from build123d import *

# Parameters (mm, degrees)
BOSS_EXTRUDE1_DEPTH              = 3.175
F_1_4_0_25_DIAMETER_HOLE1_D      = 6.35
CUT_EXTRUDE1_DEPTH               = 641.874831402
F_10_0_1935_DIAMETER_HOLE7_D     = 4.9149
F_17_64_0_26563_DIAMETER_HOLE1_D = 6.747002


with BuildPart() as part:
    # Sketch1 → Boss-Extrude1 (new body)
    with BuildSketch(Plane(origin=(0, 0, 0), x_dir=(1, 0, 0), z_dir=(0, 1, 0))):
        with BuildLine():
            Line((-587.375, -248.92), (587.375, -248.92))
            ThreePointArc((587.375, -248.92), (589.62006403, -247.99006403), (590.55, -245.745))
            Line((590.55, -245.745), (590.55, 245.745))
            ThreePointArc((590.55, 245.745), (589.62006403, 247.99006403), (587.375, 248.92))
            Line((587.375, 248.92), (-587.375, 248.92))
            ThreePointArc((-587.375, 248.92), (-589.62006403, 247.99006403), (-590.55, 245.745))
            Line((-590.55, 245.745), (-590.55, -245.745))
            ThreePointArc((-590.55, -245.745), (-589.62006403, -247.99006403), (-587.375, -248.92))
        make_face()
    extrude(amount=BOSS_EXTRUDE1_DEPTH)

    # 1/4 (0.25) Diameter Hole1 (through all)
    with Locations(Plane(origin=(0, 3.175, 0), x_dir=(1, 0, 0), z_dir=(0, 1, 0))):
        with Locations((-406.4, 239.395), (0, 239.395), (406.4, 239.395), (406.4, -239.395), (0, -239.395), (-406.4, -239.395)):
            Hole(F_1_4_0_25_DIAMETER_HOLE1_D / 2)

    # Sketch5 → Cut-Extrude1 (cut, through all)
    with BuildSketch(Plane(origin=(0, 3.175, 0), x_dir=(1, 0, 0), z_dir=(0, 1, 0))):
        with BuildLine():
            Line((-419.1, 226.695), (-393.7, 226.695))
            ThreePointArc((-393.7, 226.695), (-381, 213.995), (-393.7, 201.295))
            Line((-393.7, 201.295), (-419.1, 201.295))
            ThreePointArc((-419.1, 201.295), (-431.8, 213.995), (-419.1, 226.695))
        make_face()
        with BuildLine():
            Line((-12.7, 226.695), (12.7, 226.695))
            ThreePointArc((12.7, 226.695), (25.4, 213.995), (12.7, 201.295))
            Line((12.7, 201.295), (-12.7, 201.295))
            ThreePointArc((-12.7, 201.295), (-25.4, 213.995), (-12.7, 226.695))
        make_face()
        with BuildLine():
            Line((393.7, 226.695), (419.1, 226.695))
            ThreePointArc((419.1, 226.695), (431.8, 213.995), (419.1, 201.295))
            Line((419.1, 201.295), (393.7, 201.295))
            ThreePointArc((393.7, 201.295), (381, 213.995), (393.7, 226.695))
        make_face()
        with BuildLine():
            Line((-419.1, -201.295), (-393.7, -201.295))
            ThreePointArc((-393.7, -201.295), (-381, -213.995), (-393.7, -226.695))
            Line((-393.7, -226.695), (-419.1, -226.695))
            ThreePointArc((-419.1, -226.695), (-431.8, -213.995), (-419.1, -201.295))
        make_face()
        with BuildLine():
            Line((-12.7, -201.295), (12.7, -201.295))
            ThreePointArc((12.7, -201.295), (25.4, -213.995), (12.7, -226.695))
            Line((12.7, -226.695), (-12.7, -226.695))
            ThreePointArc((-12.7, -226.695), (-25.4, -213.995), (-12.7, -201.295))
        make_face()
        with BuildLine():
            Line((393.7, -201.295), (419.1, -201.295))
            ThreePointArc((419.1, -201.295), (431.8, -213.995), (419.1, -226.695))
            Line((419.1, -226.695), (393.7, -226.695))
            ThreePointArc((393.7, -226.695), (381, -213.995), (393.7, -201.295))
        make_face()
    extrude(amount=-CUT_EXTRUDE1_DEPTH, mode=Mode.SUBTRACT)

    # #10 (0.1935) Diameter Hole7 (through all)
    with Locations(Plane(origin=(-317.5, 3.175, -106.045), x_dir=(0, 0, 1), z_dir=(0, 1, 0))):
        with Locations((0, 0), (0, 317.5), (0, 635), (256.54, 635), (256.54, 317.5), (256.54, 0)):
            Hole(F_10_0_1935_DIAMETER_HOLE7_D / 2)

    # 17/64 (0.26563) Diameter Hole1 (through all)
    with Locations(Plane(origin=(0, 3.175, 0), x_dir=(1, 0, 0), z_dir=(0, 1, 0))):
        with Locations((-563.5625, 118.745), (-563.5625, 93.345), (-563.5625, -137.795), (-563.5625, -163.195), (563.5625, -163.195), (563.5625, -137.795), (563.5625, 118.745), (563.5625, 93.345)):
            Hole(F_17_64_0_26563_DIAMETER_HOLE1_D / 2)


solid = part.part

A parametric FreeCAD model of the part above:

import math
import FreeCAD as App
import Part
import Sketcher
from FreeCAD import Vector
Q = App.Units.Quantity

doc = App.newDocument("Part")
body = doc.addObject("PartDesign::Body", "Body")

sketch1 = doc.addObject("Sketcher::SketchObject", "Sketch")
body.addObject(sketch1)
sketch1.AttachmentSupport = (doc.XZ_Plane, [""])
sketch1.MapMode = "FlatFace"
sketch1.addGeometry([
    Part.LineSegment(Vector(-587.4, 248.9, 0), Vector(587.4, 248.9, 0)),
    Part.ArcOfCircle(Part.Circle(Vector(587.4, 245.7, 0), Vector(0, 0, 1), 3.2), math.radians(0), math.radians(90)),
    Part.LineSegment(Vector(590.5, 245.7, 0), Vector(590.5, -245.7, 0)),
    Part.ArcOfCircle(Part.Circle(Vector(587.4, -245.7, 0), Vector(0, 0, 1), 3.2), math.radians(-90), math.radians(0)),
    Part.LineSegment(Vector(587.4, -248.9, 0), Vector(-587.4, -248.9, 0)),
    Part.ArcOfCircle(Part.Circle(Vector(-587.4, -245.7, 0), Vector(0, 0, 1), 3.2), math.radians(-180), math.radians(-90)),
    Part.LineSegment(Vector(-590.5, -245.7, 0), Vector(-590.5, 245.7, 0)),
    Part.ArcOfCircle(Part.Circle(Vector(-587.4, 245.7, 0), Vector(0, 0, 1), 3.2), math.radians(90), math.radians(180)),
], False)
sketch1.addConstraint([
    Sketcher.Constraint("Tangent", 0, 2, 1, 2),
    Sketcher.Constraint("Tangent", 1, 1, 2, 1),
    Sketcher.Constraint("Tangent", 2, 2, 3, 2),
    Sketcher.Constraint("Tangent", 3, 1, 4, 1),
    Sketcher.Constraint("Tangent", 4, 2, 5, 2),
    Sketcher.Constraint("Tangent", 5, 1, 6, 1),
    Sketcher.Constraint("Tangent", 6, 2, 7, 2),
    Sketcher.Constraint("Tangent", 7, 1, 0, 1),
    Sketcher.Constraint("Horizontal", 0),
    Sketcher.Constraint("Vertical", 2),
    Sketcher.Constraint("Horizontal", 4),
    Sketcher.Constraint("Vertical", 6),
    Sketcher.Constraint("Equal", 1, 3),
    Sketcher.Constraint("Equal", 3, 5),
    Sketcher.Constraint("Equal", 5, 7),
    Sketcher.Constraint("Symmetric", 1, 3, 5, 3, -1, 1),
    Sketcher.Constraint("Radius", 1, Q("0.125 in")),
    Sketcher.Constraint("DistanceX", 0, 1, 0, 2, Q("46.25 in")),
    Sketcher.Constraint("DistanceY", 2, 2, 2, 1, Q("19.35 in")),
])
pad1 = doc.addObject("PartDesign::Pad", "Pad")
body.addObject(pad1)
pad1.Profile = sketch1
pad1.Length = Q("0.125 in")
pad1.Reversed = True

sketch2 = doc.addObject("Sketcher::SketchObject", "Sketch001")
body.addObject(sketch2)
sketch2.AttachmentSupport = (doc.XZ_Plane, [""])
sketch2.MapMode = "FlatFace"
sketch2.AttachmentOffset = App.Placement(Vector(0, 0, -0.125 * 25.4), App.Rotation())
sketch2.addGeometry([
    Part.Circle(Vector(-406.4, -239.4, 0), Vector(0, 0, 1), 3.2),
    Part.Circle(Vector(0, -239.4, 0), Vector(0, 0, 1), 3.2),
    Part.Circle(Vector(406.4, -239.4, 0), Vector(0, 0, 1), 3.2),
    Part.Circle(Vector(406.4, 239.4, 0), Vector(0, 0, 1), 3.2),
    Part.Circle(Vector(0, 239.4, 0), Vector(0, 0, 1), 3.2),
    Part.Circle(Vector(-406.4, 239.4, 0), Vector(0, 0, 1), 3.2),
], False)
sketch2.addConstraint([
    Sketcher.Constraint("Equal", 0, 1),
    Sketcher.Constraint("Equal", 1, 2),
    Sketcher.Constraint("Equal", 2, 3),
    Sketcher.Constraint("Equal", 3, 4),
    Sketcher.Constraint("Equal", 4, 5),
    Sketcher.Constraint("Symmetric", 0, 3, 3, 3, -1, 1),
    Sketcher.Constraint("Symmetric", 1, 3, 4, 3, -1, 1),
    Sketcher.Constraint("Symmetric", 2, 3, 5, 3, -1, 1),
    Sketcher.Constraint("Symmetric", 0, 3, 2, 3, -2),
    Sketcher.Constraint("PointOnObject", 1, 3, -2),
    Sketcher.Constraint("Horizontal", 0, 3, 1, 3),
    Sketcher.Constraint("Diameter", 0, Q("0.25 in")),
    Sketcher.Constraint("DistanceX", 0, 3, -1, 1, Q("16 in")),
    Sketcher.Constraint("DistanceY", 2, 3, 3, 3, Q("18.85 in")),
])
doc.recompute()
hole = doc.addObject("PartDesign::Hole", "Hole")
body.addObject(hole)
hole.Profile = sketch2
hole.ThreadType = "None"
hole.Diameter = Q("0.25 in")
hole.DepthType = "ThroughAll"
hole.Reversed = True

sketch3 = doc.addObject("Sketcher::SketchObject", "Sketch002")
body.addObject(sketch3)
sketch3.AttachmentSupport = (doc.XZ_Plane, [""])
sketch3.MapMode = "FlatFace"
sketch3.AttachmentOffset = App.Placement(Vector(0, 0, -0.125 * 25.4), App.Rotation())
sketch3.addGeometry([
    Part.LineSegment(Vector(-394, -227, 0), Vector(-419, -227, 0)),
    Part.ArcOfCircle(Part.Circle(Vector(-419, -214, 0), Vector(0, 0, 1), 13), math.radians(90), math.radians(270)),
    Part.LineSegment(Vector(-419, -201, 0), Vector(-394, -201, 0)),
    Part.ArcOfCircle(Part.Circle(Vector(-394, -214, 0), Vector(0, 0, 1), 13), math.radians(-90), math.radians(90)),
    Part.LineSegment(Vector(13, -227, 0), Vector(-13, -227, 0)),
    Part.ArcOfCircle(Part.Circle(Vector(-13, -214, 0), Vector(0, 0, 1), 13), math.radians(90), math.radians(270)),
    Part.LineSegment(Vector(-13, -201, 0), Vector(13, -201, 0)),
    Part.ArcOfCircle(Part.Circle(Vector(13, -214, 0), Vector(0, 0, 1), 13), math.radians(-90), math.radians(90)),
    Part.LineSegment(Vector(419, -227, 0), Vector(394, -227, 0)),
    Part.ArcOfCircle(Part.Circle(Vector(394, -214, 0), Vector(0, 0, 1), 13), math.radians(90), math.radians(270)),
    Part.LineSegment(Vector(394, -201, 0), Vector(419, -201, 0)),
    Part.ArcOfCircle(Part.Circle(Vector(419, -214, 0), Vector(0, 0, 1), 13), math.radians(-90), math.radians(90)),
    Part.LineSegment(Vector(-394, 201, 0), Vector(-419, 201, 0)),
    Part.ArcOfCircle(Part.Circle(Vector(-419, 214, 0), Vector(0, 0, 1), 13), math.radians(90), math.radians(270)),
    Part.LineSegment(Vector(-419, 227, 0), Vector(-394, 227, 0)),
    Part.ArcOfCircle(Part.Circle(Vector(-394, 214, 0), Vector(0, 0, 1), 13), math.radians(-90), math.radians(90)),
    Part.LineSegment(Vector(13, 201, 0), Vector(-13, 201, 0)),
    Part.ArcOfCircle(Part.Circle(Vector(-13, 214, 0), Vector(0, 0, 1), 13), math.radians(90), math.radians(270)),
    Part.LineSegment(Vector(-13, 227, 0), Vector(13, 227, 0)),
    Part.ArcOfCircle(Part.Circle(Vector(13, 214, 0), Vector(0, 0, 1), 13), math.radians(-90), math.radians(90)),
    Part.LineSegment(Vector(419, 201, 0), Vector(394, 201, 0)),
    Part.ArcOfCircle(Part.Circle(Vector(394, 214, 0), Vector(0, 0, 1), 13), math.radians(90), math.radians(270)),
    Part.LineSegment(Vector(394, 227, 0), Vector(419, 227, 0)),
    Part.ArcOfCircle(Part.Circle(Vector(419, 214, 0), Vector(0, 0, 1), 13), math.radians(-90), math.radians(90)),
], False)
sketch3.addConstraint([
    Sketcher.Constraint("Tangent", 0, 2, 1, 2),
    Sketcher.Constraint("Tangent", 1, 1, 2, 1),
    Sketcher.Constraint("Tangent", 2, 2, 3, 2),
    Sketcher.Constraint("Tangent", 3, 1, 0, 1),
    Sketcher.Constraint("Tangent", 4, 2, 5, 2),
    Sketcher.Constraint("Tangent", 5, 1, 6, 1),
    Sketcher.Constraint("Tangent", 6, 2, 7, 2),
    Sketcher.Constraint("Tangent", 7, 1, 4, 1),
    Sketcher.Constraint("Tangent", 8, 2, 9, 2),
    Sketcher.Constraint("Tangent", 9, 1, 10, 1),
    Sketcher.Constraint("Tangent", 10, 2, 11, 2),
    Sketcher.Constraint("Tangent", 11, 1, 8, 1),
    Sketcher.Constraint("Tangent", 12, 2, 13, 2),
    Sketcher.Constraint("Tangent", 13, 1, 14, 1),
    Sketcher.Constraint("Tangent", 14, 2, 15, 2),
    Sketcher.Constraint("Tangent", 15, 1, 12, 1),
    Sketcher.Constraint("Tangent", 16, 2, 17, 2),
    Sketcher.Constraint("Tangent", 17, 1, 18, 1),
    Sketcher.Constraint("Tangent", 18, 2, 19, 2),
    Sketcher.Constraint("Tangent", 19, 1, 16, 1),
    Sketcher.Constraint("Tangent", 20, 2, 21, 2),
    Sketcher.Constraint("Tangent", 21, 1, 22, 1),
    Sketcher.Constraint("Tangent", 22, 2, 23, 2),
    Sketcher.Constraint("Tangent", 23, 1, 20, 1),
    Sketcher.Constraint("Horizontal", 0),
    Sketcher.Constraint("Horizontal", 2),
    Sketcher.Constraint("Horizontal", 4),
    Sketcher.Constraint("Horizontal", 6),
    Sketcher.Constraint("Horizontal", 8),
    Sketcher.Constraint("Horizontal", 10),
    Sketcher.Constraint("Horizontal", 12),
    Sketcher.Constraint("Horizontal", 14),
    Sketcher.Constraint("Horizontal", 16),
    Sketcher.Constraint("Horizontal", 18),
    Sketcher.Constraint("Horizontal", 20),
    Sketcher.Constraint("Horizontal", 22),
    Sketcher.Constraint("Equal", 3, 5),
    Sketcher.Constraint("Equal", 7, 9),
    Sketcher.Constraint("Equal", 11, 13),
    Sketcher.Constraint("Equal", 15, 17),
    Sketcher.Constraint("Equal", 19, 21),
    Sketcher.Constraint("Symmetric", 11, 3, 13, 3, -1, 1),
    Sketcher.Constraint("Symmetric", 7, 3, 17, 3, -1, 1),
    Sketcher.Constraint("Symmetric", 3, 3, 21, 3, -1, 1),
    Sketcher.Constraint("Symmetric", 3, 3, 9, 3, -2),
    Sketcher.Constraint("Horizontal", 3, 3, 5, 3),
    Sketcher.Constraint("Vertical", 1, 3, 13, 3),
    Sketcher.Constraint("Vertical", 3, 3, 15, 3),
    Sketcher.Constraint("Vertical", 5, 3, 17, 3),
    Sketcher.Constraint("Vertical", 7, 3, 19, 3),
    Sketcher.Constraint("Vertical", 11, 3, 23, 3),
    Sketcher.Constraint("Equal", 2, 4),
    Sketcher.Constraint("Radius", 1, Q("0.5 in")),
    Sketcher.Constraint("DistanceX", 0, 2, 0, 1, Q("1 in")),
    Sketcher.Constraint("DistanceX", 3, 3, 5, 3, Q("15 in")),
    Sketcher.Constraint("DistanceY", 1, 3, 13, 3, Q("16.85 in")),
])
pocket1 = doc.addObject("PartDesign::Pocket", "Pocket")
body.addObject(pocket1)
pocket1.Profile = sketch3
pocket1.Type = "ThroughAll"
pocket1.Reversed = True

sketch4 = doc.addObject("Sketcher::SketchObject", "Sketch003")
body.addObject(sketch4)
sketch4.AttachmentSupport = (doc.XZ_Plane, [""])
sketch4.MapMode = "FlatFace"
sketch4.AttachmentOffset = App.Placement(Vector(0, 0, -0.125 * 25.4), App.Rotation())
sketch4.addGeometry([
    Part.Circle(Vector(-317.5, -106, 0), Vector(0, 0, 1), 2.5),
    Part.Circle(Vector(0, -106, 0), Vector(0, 0, 1), 2.5),
    Part.Circle(Vector(317.5, -106, 0), Vector(0, 0, 1), 2.5),
    Part.Circle(Vector(317.5, 150.5, 0), Vector(0, 0, 1), 2.5),
    Part.Circle(Vector(0, 150.5, 0), Vector(0, 0, 1), 2.5),
    Part.Circle(Vector(-317.5, 150.5, 0), Vector(0, 0, 1), 2.5),
], False)
sketch4.addConstraint([
    Sketcher.Constraint("Equal", 0, 1),
    Sketcher.Constraint("Equal", 1, 2),
    Sketcher.Constraint("Equal", 2, 3),
    Sketcher.Constraint("Equal", 3, 4),
    Sketcher.Constraint("Equal", 4, 5),
    Sketcher.Constraint("Symmetric", 0, 3, 2, 3, -2),
    Sketcher.Constraint("Symmetric", 3, 3, 5, 3, -2),
    Sketcher.Constraint("PointOnObject", 1, 3, -2),
    Sketcher.Constraint("PointOnObject", 4, 3, -2),
    Sketcher.Constraint("Horizontal", 0, 3, 1, 3),
    Sketcher.Constraint("Horizontal", 3, 3, 4, 3),
    Sketcher.Constraint("Vertical", 2, 3, 3, 3),
    Sketcher.Constraint("DistanceX", 0, 3, 2, 3, Q("25 in")),
    Sketcher.Constraint("Diameter", 0, Q("0.1935 in")),
    Sketcher.Constraint("DistanceY", 2, 3, 3, 3, Q("10.1 in")),
    Sketcher.Constraint("DistanceY", 0, 3, -1, 1, Q("4.175 in")),
])
doc.recompute()
hole2 = doc.addObject("PartDesign::Hole", "Hole001")
body.addObject(hole2)
hole2.Profile = sketch4
hole2.ThreadType = "None"
hole2.Diameter = Q("0.1935 in")
hole2.DepthType = "ThroughAll"
hole2.Reversed = True

sketch5 = doc.addObject("Sketcher::SketchObject", "Sketch004")
body.addObject(sketch5)
sketch5.AttachmentSupport = (doc.XZ_Plane, [""])
sketch5.MapMode = "FlatFace"
sketch5.AttachmentOffset = App.Placement(Vector(0, 0, -0.125 * 25.4), App.Rotation())
sketch5.addGeometry([
    Part.Circle(Vector(-563.6, -118.7, 0), Vector(0, 0, 1), 3.4),
    Part.Circle(Vector(-563.6, -93.3, 0), Vector(0, 0, 1), 3.4),
    Part.Circle(Vector(-563.6, 137.8, 0), Vector(0, 0, 1), 3.4),
    Part.Circle(Vector(-563.6, 163.2, 0), Vector(0, 0, 1), 3.4),
    Part.Circle(Vector(563.6, 163.2, 0), Vector(0, 0, 1), 3.4),
    Part.Circle(Vector(563.6, 137.8, 0), Vector(0, 0, 1), 3.4),
    Part.Circle(Vector(563.6, -118.7, 0), Vector(0, 0, 1), 3.4),
    Part.Circle(Vector(563.6, -93.3, 0), Vector(0, 0, 1), 3.4),
], False)
sketch5.addConstraint([
    Sketcher.Constraint("Equal", 0, 1),
    Sketcher.Constraint("Equal", 1, 2),
    Sketcher.Constraint("Equal", 2, 3),
    Sketcher.Constraint("Equal", 3, 4),
    Sketcher.Constraint("Equal", 4, 5),
    Sketcher.Constraint("Equal", 5, 6),
    Sketcher.Constraint("Equal", 6, 7),
    Sketcher.Constraint("Symmetric", 3, 3, 4, 3, -2),
    Sketcher.Constraint("Symmetric", 2, 3, 5, 3, -2),
    Sketcher.Constraint("Symmetric", 0, 3, 6, 3, -2),
    Sketcher.Constraint("Symmetric", 1, 3, 7, 3, -2),
    Sketcher.Constraint("Vertical", 0, 3, 1, 3),
    Sketcher.Constraint("Vertical", 1, 3, 2, 3),
    Sketcher.Constraint("Vertical", 2, 3, 3, 3),
    Sketcher.Constraint("DistanceY", 0, 3, 1, 3, Q("1 in")),
    Sketcher.Constraint("DistanceY", 2, 3, 3, 3, Q("1 in")),
    Sketcher.Constraint("DistanceY", 1, 3, 2, 3, Q("9.1 in")),
    Sketcher.Constraint("DistanceX", 0, 3, -1, 1, Q("22.1875 in")),
    Sketcher.Constraint("DistanceY", 0, 3, -1, 1, Q("4.675 in")),
    Sketcher.Constraint("Diameter", 0, Q("6.747002 mm")),
])
doc.recompute()
hole3 = doc.addObject("PartDesign::Hole", "Hole002")
body.addObject(hole3)
hole3.Profile = sketch5
hole3.ThreadType = "None"
hole3.Diameter = 6.747002
hole3.DepthType = "ThroughAll"
hole3.Reversed = True

doc.recompute()
